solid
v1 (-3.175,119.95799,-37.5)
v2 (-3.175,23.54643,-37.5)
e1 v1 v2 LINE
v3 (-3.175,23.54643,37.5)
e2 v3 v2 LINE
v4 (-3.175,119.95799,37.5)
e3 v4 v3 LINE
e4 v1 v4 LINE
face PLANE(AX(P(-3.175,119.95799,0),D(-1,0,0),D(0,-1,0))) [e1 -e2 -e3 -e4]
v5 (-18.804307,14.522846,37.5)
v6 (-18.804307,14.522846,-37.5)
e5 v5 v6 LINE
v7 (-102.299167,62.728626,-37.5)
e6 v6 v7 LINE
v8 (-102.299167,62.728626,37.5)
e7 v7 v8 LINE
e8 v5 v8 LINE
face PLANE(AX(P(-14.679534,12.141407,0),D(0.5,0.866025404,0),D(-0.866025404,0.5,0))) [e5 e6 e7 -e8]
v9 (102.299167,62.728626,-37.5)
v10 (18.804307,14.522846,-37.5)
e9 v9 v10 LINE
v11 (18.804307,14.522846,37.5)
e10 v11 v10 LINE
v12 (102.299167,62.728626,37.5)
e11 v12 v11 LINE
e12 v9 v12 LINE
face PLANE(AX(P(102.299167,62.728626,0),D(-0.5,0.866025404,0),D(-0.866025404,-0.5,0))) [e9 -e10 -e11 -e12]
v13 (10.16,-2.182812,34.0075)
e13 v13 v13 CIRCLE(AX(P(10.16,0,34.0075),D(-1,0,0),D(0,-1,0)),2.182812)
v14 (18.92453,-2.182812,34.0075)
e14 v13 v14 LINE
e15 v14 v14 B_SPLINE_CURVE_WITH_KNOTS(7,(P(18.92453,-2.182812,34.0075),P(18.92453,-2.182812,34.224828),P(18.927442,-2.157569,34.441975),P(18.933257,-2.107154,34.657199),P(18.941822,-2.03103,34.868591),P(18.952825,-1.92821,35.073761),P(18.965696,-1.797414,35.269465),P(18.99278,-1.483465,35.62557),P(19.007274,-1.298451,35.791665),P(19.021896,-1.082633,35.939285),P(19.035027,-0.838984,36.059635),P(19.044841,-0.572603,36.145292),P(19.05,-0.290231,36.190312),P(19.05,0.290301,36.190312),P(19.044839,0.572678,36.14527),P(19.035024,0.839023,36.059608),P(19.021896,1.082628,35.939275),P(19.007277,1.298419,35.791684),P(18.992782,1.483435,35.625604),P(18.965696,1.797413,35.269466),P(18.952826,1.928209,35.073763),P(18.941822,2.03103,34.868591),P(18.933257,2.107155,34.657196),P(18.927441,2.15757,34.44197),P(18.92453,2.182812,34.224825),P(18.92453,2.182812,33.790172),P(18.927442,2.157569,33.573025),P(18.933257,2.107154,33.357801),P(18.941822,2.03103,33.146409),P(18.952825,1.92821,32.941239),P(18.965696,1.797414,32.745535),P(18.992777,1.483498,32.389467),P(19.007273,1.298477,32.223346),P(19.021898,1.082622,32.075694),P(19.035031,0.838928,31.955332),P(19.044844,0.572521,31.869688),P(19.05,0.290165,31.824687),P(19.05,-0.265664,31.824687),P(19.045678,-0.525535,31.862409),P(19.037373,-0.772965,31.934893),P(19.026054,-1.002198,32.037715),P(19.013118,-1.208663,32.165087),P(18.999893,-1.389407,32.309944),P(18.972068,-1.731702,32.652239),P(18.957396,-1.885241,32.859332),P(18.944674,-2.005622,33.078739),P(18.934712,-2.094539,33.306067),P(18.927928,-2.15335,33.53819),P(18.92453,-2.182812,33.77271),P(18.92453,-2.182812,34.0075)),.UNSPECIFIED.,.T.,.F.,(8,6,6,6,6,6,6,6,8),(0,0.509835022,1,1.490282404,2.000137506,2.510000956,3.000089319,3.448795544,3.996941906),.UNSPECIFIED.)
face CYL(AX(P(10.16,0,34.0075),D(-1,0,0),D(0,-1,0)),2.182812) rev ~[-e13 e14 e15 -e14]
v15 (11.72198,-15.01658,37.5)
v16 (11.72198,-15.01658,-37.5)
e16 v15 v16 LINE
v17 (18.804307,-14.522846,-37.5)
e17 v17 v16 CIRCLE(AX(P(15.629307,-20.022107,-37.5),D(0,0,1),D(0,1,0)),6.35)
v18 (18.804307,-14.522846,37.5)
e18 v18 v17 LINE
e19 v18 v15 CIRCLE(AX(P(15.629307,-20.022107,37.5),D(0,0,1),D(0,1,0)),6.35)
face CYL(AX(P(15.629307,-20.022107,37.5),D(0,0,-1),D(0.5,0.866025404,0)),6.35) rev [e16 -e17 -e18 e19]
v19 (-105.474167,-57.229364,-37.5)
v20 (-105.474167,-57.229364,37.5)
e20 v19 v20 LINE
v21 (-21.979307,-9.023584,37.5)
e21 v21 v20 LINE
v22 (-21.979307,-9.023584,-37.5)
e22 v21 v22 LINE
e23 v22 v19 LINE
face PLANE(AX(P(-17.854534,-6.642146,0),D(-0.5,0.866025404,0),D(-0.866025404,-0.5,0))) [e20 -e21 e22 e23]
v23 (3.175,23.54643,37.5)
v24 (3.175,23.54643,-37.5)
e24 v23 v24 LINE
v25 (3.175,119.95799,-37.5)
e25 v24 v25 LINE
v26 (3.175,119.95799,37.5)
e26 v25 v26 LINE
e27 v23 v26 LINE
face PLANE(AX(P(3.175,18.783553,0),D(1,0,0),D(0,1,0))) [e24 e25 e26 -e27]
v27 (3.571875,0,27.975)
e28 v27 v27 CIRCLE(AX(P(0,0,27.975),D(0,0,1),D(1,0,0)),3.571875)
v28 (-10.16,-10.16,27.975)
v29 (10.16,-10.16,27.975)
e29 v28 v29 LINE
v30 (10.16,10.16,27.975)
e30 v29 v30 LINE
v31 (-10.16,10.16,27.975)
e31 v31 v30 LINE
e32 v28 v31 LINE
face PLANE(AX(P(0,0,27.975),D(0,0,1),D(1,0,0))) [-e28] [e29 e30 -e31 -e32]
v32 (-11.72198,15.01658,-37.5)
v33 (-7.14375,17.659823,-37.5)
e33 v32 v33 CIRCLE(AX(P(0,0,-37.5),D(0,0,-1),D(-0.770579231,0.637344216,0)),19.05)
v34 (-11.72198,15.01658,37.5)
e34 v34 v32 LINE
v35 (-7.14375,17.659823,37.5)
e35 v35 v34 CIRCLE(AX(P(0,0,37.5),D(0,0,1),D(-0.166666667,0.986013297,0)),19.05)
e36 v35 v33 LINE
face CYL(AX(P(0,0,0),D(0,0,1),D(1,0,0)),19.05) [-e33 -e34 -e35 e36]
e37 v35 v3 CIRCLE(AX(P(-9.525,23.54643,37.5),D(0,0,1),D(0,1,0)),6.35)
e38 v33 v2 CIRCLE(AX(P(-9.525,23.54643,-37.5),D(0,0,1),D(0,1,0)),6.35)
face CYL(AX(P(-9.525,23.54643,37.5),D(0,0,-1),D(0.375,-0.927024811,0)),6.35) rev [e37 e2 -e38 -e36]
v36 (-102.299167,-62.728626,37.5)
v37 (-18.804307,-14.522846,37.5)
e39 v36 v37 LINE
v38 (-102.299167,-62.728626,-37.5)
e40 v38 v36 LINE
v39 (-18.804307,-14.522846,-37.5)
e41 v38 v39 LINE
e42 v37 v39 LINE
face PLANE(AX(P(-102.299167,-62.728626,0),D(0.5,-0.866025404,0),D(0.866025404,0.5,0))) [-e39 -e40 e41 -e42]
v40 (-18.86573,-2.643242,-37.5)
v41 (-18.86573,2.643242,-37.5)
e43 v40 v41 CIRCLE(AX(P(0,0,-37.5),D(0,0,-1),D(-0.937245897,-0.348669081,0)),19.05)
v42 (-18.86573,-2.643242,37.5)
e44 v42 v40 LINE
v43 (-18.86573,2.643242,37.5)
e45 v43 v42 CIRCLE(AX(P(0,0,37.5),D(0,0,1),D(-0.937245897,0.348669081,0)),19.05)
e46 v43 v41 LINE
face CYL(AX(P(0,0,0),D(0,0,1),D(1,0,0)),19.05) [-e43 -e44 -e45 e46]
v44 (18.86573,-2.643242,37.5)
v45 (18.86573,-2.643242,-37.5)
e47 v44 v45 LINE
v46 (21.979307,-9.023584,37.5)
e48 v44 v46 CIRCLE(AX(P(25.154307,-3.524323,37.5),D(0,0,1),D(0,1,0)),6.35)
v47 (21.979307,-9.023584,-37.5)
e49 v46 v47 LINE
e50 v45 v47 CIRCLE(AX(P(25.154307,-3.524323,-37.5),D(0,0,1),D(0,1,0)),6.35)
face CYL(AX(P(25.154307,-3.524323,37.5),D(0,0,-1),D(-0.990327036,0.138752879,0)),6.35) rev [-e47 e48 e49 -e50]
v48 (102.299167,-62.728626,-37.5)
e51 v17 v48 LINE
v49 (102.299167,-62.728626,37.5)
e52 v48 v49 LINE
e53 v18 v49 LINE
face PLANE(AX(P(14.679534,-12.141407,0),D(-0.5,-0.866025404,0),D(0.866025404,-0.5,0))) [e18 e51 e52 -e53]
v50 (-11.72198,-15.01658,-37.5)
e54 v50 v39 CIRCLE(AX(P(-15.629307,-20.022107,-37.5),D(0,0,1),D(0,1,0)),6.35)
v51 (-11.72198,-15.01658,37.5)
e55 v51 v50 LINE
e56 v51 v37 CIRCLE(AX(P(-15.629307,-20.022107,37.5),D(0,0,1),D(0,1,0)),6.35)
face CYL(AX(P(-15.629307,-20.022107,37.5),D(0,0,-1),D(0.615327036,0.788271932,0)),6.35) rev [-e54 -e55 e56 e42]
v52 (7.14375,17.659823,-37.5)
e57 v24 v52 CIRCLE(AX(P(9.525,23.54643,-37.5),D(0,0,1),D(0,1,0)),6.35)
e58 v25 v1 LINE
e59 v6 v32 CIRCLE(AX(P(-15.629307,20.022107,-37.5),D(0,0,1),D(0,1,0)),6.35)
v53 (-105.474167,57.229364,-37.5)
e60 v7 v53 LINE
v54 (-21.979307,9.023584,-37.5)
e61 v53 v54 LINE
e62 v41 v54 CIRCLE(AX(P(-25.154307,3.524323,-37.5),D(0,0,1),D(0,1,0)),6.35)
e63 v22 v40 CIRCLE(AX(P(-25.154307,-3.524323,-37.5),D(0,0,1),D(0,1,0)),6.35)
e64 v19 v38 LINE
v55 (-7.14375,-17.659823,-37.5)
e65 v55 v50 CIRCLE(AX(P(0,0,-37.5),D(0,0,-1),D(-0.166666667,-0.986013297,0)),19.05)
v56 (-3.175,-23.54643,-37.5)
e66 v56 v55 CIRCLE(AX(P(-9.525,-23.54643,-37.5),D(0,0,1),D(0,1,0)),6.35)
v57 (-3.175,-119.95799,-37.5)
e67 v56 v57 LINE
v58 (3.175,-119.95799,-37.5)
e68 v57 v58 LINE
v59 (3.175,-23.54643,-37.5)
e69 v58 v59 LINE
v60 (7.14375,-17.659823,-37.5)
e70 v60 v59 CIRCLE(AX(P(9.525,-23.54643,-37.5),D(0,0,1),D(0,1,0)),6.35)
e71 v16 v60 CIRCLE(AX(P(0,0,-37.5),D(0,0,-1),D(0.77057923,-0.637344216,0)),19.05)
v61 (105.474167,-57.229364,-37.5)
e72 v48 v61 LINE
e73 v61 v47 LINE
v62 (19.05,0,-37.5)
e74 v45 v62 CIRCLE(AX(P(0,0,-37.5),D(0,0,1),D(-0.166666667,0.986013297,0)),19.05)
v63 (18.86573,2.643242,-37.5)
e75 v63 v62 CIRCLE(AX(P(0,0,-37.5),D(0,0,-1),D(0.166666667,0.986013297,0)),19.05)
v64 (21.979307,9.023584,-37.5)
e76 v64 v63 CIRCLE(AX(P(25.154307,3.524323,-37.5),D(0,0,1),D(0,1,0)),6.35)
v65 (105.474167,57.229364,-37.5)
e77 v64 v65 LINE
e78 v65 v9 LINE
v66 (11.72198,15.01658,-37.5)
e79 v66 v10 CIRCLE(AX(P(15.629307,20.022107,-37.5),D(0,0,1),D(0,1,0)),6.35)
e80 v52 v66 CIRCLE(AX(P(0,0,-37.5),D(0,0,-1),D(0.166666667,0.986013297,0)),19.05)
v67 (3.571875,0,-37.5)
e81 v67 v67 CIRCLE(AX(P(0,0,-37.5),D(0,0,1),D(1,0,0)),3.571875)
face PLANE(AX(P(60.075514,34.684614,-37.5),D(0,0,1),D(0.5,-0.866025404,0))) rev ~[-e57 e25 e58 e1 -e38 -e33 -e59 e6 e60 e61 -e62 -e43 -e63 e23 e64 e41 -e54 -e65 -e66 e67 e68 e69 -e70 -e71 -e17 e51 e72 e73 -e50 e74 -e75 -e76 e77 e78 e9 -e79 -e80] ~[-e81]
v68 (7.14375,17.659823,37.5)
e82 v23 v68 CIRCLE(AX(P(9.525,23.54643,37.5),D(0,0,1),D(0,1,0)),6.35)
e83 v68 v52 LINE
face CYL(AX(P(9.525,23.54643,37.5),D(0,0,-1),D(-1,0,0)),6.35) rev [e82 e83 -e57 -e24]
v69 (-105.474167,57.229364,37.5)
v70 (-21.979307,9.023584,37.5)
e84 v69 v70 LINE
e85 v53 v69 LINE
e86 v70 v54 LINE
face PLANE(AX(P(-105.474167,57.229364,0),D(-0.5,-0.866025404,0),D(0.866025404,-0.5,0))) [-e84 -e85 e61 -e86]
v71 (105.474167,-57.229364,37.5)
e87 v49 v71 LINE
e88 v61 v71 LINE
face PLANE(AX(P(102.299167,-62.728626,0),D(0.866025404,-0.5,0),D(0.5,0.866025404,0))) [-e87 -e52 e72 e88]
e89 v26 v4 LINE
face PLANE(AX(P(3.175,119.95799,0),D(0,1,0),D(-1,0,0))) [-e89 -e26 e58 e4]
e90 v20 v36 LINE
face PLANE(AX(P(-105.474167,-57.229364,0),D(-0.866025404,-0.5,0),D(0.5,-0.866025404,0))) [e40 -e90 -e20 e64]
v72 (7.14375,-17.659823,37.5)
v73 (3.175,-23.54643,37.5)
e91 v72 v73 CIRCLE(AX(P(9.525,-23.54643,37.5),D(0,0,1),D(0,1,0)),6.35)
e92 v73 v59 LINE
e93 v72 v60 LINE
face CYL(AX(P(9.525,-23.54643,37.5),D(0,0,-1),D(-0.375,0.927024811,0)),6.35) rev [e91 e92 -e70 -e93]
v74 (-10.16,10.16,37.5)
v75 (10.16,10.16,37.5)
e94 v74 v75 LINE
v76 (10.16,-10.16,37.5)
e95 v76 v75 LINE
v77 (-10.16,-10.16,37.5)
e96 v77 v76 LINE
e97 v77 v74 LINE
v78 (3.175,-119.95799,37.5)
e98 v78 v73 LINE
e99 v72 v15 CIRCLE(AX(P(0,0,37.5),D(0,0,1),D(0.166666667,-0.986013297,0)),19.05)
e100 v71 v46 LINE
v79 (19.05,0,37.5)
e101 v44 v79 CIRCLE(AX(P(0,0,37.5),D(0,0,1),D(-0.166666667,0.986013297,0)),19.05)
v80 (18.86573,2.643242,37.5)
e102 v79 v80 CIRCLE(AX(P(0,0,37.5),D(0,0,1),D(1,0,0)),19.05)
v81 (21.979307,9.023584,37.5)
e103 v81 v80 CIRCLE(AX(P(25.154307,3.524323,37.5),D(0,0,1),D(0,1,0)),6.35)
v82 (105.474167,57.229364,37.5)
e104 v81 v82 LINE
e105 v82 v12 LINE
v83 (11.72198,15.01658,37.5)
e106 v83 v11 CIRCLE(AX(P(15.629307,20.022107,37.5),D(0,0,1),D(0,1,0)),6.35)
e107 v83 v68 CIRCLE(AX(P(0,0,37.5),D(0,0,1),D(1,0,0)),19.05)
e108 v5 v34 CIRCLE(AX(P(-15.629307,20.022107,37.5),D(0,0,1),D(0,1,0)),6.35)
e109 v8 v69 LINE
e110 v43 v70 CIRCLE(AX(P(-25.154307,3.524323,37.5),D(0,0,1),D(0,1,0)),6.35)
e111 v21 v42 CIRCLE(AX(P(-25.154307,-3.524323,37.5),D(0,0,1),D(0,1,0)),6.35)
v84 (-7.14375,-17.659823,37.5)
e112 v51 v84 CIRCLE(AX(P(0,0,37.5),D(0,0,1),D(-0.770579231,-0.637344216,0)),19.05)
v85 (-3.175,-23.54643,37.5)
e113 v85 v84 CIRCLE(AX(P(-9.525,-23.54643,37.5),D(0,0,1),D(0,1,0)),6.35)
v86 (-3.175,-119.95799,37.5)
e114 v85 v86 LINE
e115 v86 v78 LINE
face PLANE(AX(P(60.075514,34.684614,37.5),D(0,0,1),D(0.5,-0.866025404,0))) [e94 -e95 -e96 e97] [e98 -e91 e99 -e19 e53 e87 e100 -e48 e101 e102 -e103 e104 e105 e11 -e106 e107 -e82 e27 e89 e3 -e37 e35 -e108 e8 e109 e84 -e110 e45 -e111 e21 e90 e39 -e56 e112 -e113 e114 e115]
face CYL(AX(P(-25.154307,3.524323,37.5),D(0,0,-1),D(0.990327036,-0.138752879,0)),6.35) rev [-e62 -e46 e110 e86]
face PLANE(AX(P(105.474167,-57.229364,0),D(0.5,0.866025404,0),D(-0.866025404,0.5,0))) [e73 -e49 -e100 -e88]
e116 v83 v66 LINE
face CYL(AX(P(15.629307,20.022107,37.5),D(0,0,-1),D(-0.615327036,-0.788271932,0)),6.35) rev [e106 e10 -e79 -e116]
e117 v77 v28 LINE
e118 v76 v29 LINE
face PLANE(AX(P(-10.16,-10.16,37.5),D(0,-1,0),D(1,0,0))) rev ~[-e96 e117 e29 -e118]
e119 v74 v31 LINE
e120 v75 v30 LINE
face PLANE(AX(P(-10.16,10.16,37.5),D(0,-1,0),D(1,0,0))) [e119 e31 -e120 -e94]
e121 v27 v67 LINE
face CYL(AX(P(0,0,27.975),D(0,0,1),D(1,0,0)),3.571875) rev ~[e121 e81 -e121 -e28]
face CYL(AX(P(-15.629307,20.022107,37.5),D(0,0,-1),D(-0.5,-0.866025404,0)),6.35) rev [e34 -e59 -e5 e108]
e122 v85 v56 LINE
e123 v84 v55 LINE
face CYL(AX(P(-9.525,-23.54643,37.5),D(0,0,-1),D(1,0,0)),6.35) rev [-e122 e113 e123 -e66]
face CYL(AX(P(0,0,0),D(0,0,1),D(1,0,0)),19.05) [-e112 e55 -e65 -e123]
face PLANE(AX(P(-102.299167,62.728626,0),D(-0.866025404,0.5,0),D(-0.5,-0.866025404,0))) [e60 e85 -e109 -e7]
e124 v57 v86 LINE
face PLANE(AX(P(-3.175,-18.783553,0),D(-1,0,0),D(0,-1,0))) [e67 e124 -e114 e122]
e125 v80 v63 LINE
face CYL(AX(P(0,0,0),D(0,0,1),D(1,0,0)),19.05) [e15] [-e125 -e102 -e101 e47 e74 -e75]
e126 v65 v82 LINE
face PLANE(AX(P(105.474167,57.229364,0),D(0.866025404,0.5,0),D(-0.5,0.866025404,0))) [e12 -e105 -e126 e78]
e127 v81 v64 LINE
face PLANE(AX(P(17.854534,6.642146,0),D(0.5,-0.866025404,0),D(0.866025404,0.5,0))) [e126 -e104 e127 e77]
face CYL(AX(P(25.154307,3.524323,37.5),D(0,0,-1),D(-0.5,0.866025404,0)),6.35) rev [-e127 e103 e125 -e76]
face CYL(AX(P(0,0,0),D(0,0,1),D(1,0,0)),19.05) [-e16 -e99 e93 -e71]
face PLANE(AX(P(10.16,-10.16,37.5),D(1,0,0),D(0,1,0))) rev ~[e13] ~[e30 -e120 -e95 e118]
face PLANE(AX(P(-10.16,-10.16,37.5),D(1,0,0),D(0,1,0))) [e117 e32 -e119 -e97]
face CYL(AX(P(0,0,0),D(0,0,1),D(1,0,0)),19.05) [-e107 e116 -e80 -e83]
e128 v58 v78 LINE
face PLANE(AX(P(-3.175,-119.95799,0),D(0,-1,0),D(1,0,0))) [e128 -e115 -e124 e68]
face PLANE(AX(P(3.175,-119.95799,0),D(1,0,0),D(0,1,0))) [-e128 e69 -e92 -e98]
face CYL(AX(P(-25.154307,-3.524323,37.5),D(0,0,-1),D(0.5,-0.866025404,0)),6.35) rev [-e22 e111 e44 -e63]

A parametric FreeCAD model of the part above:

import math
import FreeCAD as App
import Part
import Sketcher
from FreeCAD import Vector
Q = App.Units.Quantity


def edges_at(feature, points):
    """Names of the edges that pass closest to the given points."""
    edges = feature.Shape.Edges
    near = lambda p: min(range(len(edges)), key=lambda i: edges[i].distToShape(Part.Vertex(*p))[0])
    return sorted({f"Edge{near(p) + 1}" for p in points})


def add_polygon(sketch, points):
    """Adds a closed chain of lines whose ends are joined by coincident constraints."""
    first, n = sketch.GeometryCount, len(points)
    for a, b in zip(points, points[1:] + points[:1]):
        sketch.addGeometry(Part.LineSegment(App.Vector(*a, 0), App.Vector(*b, 0)), False)
    for i in range(n):
        sketch.addConstraint(Sketcher.Constraint("Coincident", first + i, 2, first + (i + 1) % n, 1))

doc = App.newDocument("Part")
params = doc.addObject("Spreadsheet::Sheet", "Params")
for row, (alias, value) in enumerate([
    ("sketch1_radius", "0.75 in"),
    ("sketch1_width", "0.25 in"),
    ("pad1_length", "75 mm"),
    ("fillet_radius", "0.25 in"),
    ("sketch2_width", "0.8 in"),
    ("pocket1_length", "0.375 in"),
    ("sketch3_diameter", "0.28125 in"),
    ("sketch4_diameter", "0.171875 in"),
], start=1):
    params.set(f"A{row}", alias)
    params.set(f"B{row}", "=" + value)
    params.setAlias(f"B{row}", alias)

body = doc.addObject("PartDesign::Body", "Body")

sketch1 = body.newObject("Sketcher::SketchObject", "Sketch")
sketch1.AttachmentSupport = (doc.getObject("XY_Plane"), [""])
sketch1.MapMode = "FlatFace"
sketch1.addGeometry([
    Part.LineSegment(Vector(3, 19, 0), Vector(3, 120, 0)),
    Part.LineSegment(Vector(3, 120, 0), Vector(-3, 120, 0)),
    Part.LineSegment(Vector(-3, 120, 0), Vector(-3, 19, 0)),
    Part.ArcOfCircle(Part.Circle(Vector(0, 0, 0), Vector(0, 0, 1), 19), math.radians(100), math.radians(360)),
    Part.ArcOfCircle(Part.Circle(Vector(0, 0, 0), Vector(0, 0, 1), 19), math.radians(0), math.radians(80)),
], False)
sketch1.addConstraint([
    Sketcher.Constraint("Coincident", 0, 2, 1, 1),
    Sketcher.Constraint("Coincident", 1, 2, 2, 1),
    Sketcher.Constraint("Coincident", 2, 2, 3, 1),
    Sketcher.Constraint("Tangent", 3, 2, 4, 1),
    Sketcher.Constraint("Coincident", 4, 2, 0, 1),
    Sketcher.Constraint("Vertical", 0),
    Sketcher.Constraint("Horizontal", 1),
    Sketcher.Constraint("Vertical", 2),
    Sketcher.Constraint("Coincident", 3, 3, -1, 1),
    Sketcher.Constraint("Equal", 3, 4),
    Sketcher.Constraint("PointOnObject", 3, 2, -1),
    Sketcher.Constraint("Horizontal", 2, 2, 4, 2),
    Sketcher.Constraint("Radius", 3, Q("0.75 in")),
    Sketcher.Constraint("DistanceX", 1, 2, 1, 1, Q("0.25 in")),
    Sketcher.Constraint("DistanceY", 0, 1, 0, 2, Q("101.174437 mm")),
])
sketch1.setExpression("Constraints[12]", "Params.sketch1_radius")
sketch1.setExpression("Constraints[13]", "Params.sketch1_width")
pad1 = body.newObject("PartDesign::Pad", "Pad")
pad1.Profile = sketch1
pad1.setExpression("Length", "Params.pad1_length")
pad1.Midplane = True
doc.recompute()

polarpattern = body.newObject("PartDesign::PolarPattern", "PolarPattern")
polarpattern.Originals = [pad1]
polarpattern.Axis = (doc.getObject("Z_Axis"), [""])
polarpattern.Angle = 360
polarpattern.Occurrences = 6
body.Tip = polarpattern
doc.recompute()

fillet = body.newObject("PartDesign::Fillet", "Fillet")
fillet.Base = (polarpattern, edges_at(polarpattern, [
    (14.68, 12.141, 0),
    (-17.855, 6.642, 0),
    (3.175, -18.784, 0),
    (17.855, -6.642, 0),
    (-14.68, -12.141, 0),
    (-14.68, 12.141, 0),
    (-3.175, -18.784, 0),
    (17.855, 6.642, 0),
    (14.68, -12.141, 0),
    (-17.855, -6.642, 0),
    (-3.175, 18.784, 0),
    (3.175, 18.784, 0),
]))
fillet.setExpression("Radius", "Params.fillet_radius")

sketch2 = body.newObject("Sketcher::SketchObject", "Sketch001")
sketch2.AttachmentSupport = (doc.getObject("XY_Plane"), [""])
sketch2.MapMode = "FlatFace"
sketch2.AttachmentOffset = App.Placement(Vector(0, 0, 37.5), App.Rotation())
add_polygon(sketch2, [(-10, 10), (-10, -10), (10, -10), (10, 10)])
sketch2.addConstraint([
    Sketcher.Constraint("Vertical", 0),
    Sketcher.Constraint("Horizontal", 1),
    Sketcher.Constraint("Vertical", 2),
    Sketcher.Constraint("Horizontal", 3),
    Sketcher.Constraint("Symmetric", 0, 2, 2, 2, -1, 1),
    Sketcher.Constraint("Equal", 3, 0),
    Sketcher.Constraint("DistanceX", 1, 1, 1, 2, Q("0.8 in")),
])
sketch2.setExpression("Constraints[10]", "Params.sketch2_width")
pocket1 = body.newObject("PartDesign::Pocket", "Pocket")
pocket1.Profile = sketch2
pocket1.setExpression("Length", "Params.pocket1_length")

sketch3 = body.newObject("Sketcher::SketchObject", "Sketch002")
sketch3.AttachmentSupport = (doc.getObject("XY_Plane"), [""])
sketch3.MapMode = "FlatFace"
sketch3.AttachmentOffset = App.Placement(Vector(0, 0, 27.975), App.Rotation())
sketch3.addGeometry(Part.Circle(Vector(0, 0, 0), Vector(0, 0, 1), 3.6), False)
sketch3.addConstraint([
    Sketcher.Constraint("Coincident", 0, 3, -1, 1),
    Sketcher.Constraint("Diameter", 0, Q("0.28125 in")),
])
sketch3.setExpression("Constraints[1]", "Params.sketch3_diameter")
pocket2 = body.newObject("PartDesign::Pocket", "Pocket001")
pocket2.Profile = sketch3
pocket2.Type = "ThroughAll"

sketch4 = body.newObject("Sketcher::SketchObject", "Sketch003")
sketch4.AttachmentSupport = (doc.getObject("YZ_Plane"), [""])
sketch4.MapMode = "FlatFace"
sketch4.AttachmentOffset = App.Placement(Vector(0, 0, 0.4 * 25.4), App.Rotation())
sketch4.addGeometry(Part.Circle(Vector(0, 34, 0), Vector(0, 0, 1), 2.2), False)
sketch4.addConstraint([
    Sketcher.Constraint("PointOnObject", 0, 3, -2),
    Sketcher.Constraint("Diameter", 0, Q("0.171875 in")),
    Sketcher.Constraint("DistanceY", -1, 1, 0, 3, Q("34.0075 mm")),
])
sketch4.setExpression("Constraints[1]", "Params.sketch4_diameter")
pocket3 = body.newObject("PartDesign::Pocket", "Pocket002")
pocket3.Profile = sketch4
pocket3.Type = "ThroughAll"
pocket3.Reversed = True

doc.recompute()
